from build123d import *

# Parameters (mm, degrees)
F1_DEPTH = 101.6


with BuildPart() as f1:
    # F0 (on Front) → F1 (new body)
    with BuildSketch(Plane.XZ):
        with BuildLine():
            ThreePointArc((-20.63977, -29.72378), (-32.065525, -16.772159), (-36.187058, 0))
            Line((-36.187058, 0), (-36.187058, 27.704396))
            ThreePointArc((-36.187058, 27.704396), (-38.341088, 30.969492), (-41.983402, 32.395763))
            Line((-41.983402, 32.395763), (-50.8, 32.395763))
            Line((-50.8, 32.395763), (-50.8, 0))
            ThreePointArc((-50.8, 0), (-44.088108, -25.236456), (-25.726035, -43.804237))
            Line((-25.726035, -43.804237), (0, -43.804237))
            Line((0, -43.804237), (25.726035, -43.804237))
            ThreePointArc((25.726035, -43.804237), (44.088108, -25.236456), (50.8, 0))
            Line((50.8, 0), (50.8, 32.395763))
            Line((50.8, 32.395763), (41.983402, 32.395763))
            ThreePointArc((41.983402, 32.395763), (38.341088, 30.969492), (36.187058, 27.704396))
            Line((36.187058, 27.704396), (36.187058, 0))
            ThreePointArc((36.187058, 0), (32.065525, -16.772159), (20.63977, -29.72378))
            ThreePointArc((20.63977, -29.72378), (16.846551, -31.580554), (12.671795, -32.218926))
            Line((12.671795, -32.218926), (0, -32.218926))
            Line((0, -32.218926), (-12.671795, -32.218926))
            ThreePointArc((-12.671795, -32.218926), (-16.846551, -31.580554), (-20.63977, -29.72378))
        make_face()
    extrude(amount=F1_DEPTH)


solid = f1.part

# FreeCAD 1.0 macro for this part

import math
import FreeCAD as App
import Part
import Sketcher
from FreeCAD import Vector
Q = App.Units.Quantity

doc = App.newDocument("Part")
body = doc.addObject("PartDesign::Body", "Body")

# Sketch on XZ plane
sketch1 = body.newObject("Sketcher::SketchObject", "Sketch")
sketch1.AttachmentSupport = (doc.getObject("XZ_Plane"), [""])
sketch1.MapMode = "FlatFace"
sketch1.addGeometry([
    Part.ArcOfCircle(Part.Circle(Vector(-0.000003, -0.000002, 0), Vector(0, 0, 1), 36.187055), math.radians(179.999997), math.radians(235.224438)),  # 0
    Part.LineSegment(Vector(-36.187058, 0, 0), Vector(-36.187058, 27.704396, 0)),  # 1
    Part.ArcOfCircle(Part.Circle(Vector(-42.41019, 25.941978, 0), Vector(0, 0, 1), 6.467882), math.radians(15.812354), math.radians(86.216544)),  # 2
    Part.LineSegment(Vector(-41.983402, 32.395763, 0), Vector(-50.8, 32.395763, 0)),  # 3
    Part.LineSegment(Vector(-50.8, 32.395763, 0), Vector(-50.8, 0, 0)),  # 4
    Part.ArcOfCircle(Part.Circle(Vector(0.000003, 0.000001, 0), Vector(0, 0, 1), 50.800003), math.radians(-179.999998), math.radians(-120.425531)),  # 5
    Part.LineSegment(Vector(-25.726035, -43.804237, 0), Vector(25.726035, -43.804237, 0)),  # 6
    Part.ArcOfCircle(Part.Circle(Vector(-0.000003, 0.000001, 0), Vector(0, 0, 1), 50.800003), math.radians(-59.574469), math.radians(-0.000002)),  # 7
    Part.LineSegment(Vector(50.8, 0, 0), Vector(50.8, 32.395763, 0)),  # 8
    Part.LineSegment(Vector(50.8, 32.395763, 0), Vector(41.983402, 32.395763, 0)),  # 9
    Part.ArcOfCircle(Part.Circle(Vector(42.41019, 25.941978, 0), Vector(0, 0, 1), 6.467882), math.radians(93.783456), math.radians(164.187646)),  # 10
    Part.LineSegment(Vector(36.187058, 27.704396, 0), Vector(36.187058, 0, 0)),  # 11
    Part.ArcOfCircle(Part.Circle(Vector(0.000003, -0.000002, 0), Vector(0, 0, 1), 36.187055), math.radians(-55.224438), math.radians(0.000003)),  # 12
    Part.ArcOfCircle(Part.Circle(Vector(12.671793, -18.248921, 0), Vector(0, 0, 1), 13.970005), math.radians(-89.999993), math.radians(-55.224445)),  # 13
    Part.LineSegment(Vector(12.671795, -32.218926, 0), Vector(-12.671795, -32.218926, 0)),  # 14
    Part.ArcOfCircle(Part.Circle(Vector(-12.671793, -18.248921, 0), Vector(0, 0, 1), 13.970005), math.radians(-124.775555), math.radians(-90.000007)),  # 15
], False)
sketch1.addConstraint([
    Sketcher.Constraint("Tangent", 0, 1, 1, 1),
    Sketcher.Constraint("Coincident", 1, 2, 2, 1),
    Sketcher.Constraint("Coincident", 2, 2, 3, 1),
    Sketcher.Constraint("Coincident", 3, 2, 4, 1),
    Sketcher.Constraint("Tangent", 4, 2, 5, 1),
    Sketcher.Constraint("Coincident", 5, 2, 6, 1),
    Sketcher.Constraint("Coincident", 6, 2, 7, 1),
    Sketcher.Constraint("Tangent", 7, 2, 8, 1),
    Sketcher.Constraint("Coincident", 8, 2, 9, 1),
    Sketcher.Constraint("Coincident", 9, 2, 10, 1),
    Sketcher.Constraint("Coincident", 10, 2, 11, 1),
    Sketcher.Constraint("Tangent", 11, 2, 12, 2),
    Sketcher.Constraint("Tangent", 12, 1, 13, 2),
    Sketcher.Constraint("Tangent", 13, 1, 14, 1),
    Sketcher.Constraint("Tangent", 14, 2, 15, 2),
    Sketcher.Constraint("Tangent", 15, 1, 0, 2),
    Sketcher.Constraint("Vertical", 1),
    Sketcher.Constraint("Horizontal", 3),
    Sketcher.Constraint("Vertical", 4),
    Sketcher.Constraint("Horizontal", 6),
    Sketcher.Constraint("Vertical", 8),
    Sketcher.Constraint("Horizontal", 9),
    Sketcher.Constraint("Vertical", 11),
    Sketcher.Constraint("Horizontal", 14),
    Sketcher.Constraint("Coincident", 0, 3, -1, 1),
    Sketcher.Constraint("Coincident", 5, 3, -1, 1),
    Sketcher.Constraint("Coincident", 7, 3, -1, 1),
    Sketcher.Constraint("Coincident", 12, 3, -1, 1),
    Sketcher.Constraint("Equal", 5, 7),
    Sketcher.Constraint("Equal", 2, 10),
    Sketcher.Constraint("Equal", 0, 12),
    Sketcher.Constraint("Equal", 13, 15),
    Sketcher.Constraint("Symmetric", 2, 3, 10, 3, -2),
    Sketcher.Constraint("Horizontal", 3, 2, 8, 2),
    Sketcher.Constraint("Radius", 5, Q("2.0000001 in")),
    Sketcher.Constraint("Radius", 2, Q("6.467882 mm")),
    Sketcher.Constraint("Radius", 0, Q("36.187055 mm")),
    Sketcher.Constraint("Radius", 13, Q("13.970005 mm")),
    Sketcher.Constraint("DistanceX", 13, 3, 12, 1, Q("0.3136999 in")),
    Sketcher.Constraint("DistanceX", 6, 1, 6, 2, Q("51.45207 mm")),
    Sketcher.Constraint("DistanceX", -1, 1, 9, 2, Q("41.983402 mm")),
    Sketcher.Constraint("DistanceY", 13, 3, 10, 3, Q("44.190898 mm")),
    Sketcher.Constraint("DistanceY", 1, 1, 1, 2, Q("27.704396 mm")),
])
pad1 = body.newObject("PartDesign::Pad", "Pad")
pad1.Profile = sketch1
pad1.Length = Q("4 in")

doc.recompute()
